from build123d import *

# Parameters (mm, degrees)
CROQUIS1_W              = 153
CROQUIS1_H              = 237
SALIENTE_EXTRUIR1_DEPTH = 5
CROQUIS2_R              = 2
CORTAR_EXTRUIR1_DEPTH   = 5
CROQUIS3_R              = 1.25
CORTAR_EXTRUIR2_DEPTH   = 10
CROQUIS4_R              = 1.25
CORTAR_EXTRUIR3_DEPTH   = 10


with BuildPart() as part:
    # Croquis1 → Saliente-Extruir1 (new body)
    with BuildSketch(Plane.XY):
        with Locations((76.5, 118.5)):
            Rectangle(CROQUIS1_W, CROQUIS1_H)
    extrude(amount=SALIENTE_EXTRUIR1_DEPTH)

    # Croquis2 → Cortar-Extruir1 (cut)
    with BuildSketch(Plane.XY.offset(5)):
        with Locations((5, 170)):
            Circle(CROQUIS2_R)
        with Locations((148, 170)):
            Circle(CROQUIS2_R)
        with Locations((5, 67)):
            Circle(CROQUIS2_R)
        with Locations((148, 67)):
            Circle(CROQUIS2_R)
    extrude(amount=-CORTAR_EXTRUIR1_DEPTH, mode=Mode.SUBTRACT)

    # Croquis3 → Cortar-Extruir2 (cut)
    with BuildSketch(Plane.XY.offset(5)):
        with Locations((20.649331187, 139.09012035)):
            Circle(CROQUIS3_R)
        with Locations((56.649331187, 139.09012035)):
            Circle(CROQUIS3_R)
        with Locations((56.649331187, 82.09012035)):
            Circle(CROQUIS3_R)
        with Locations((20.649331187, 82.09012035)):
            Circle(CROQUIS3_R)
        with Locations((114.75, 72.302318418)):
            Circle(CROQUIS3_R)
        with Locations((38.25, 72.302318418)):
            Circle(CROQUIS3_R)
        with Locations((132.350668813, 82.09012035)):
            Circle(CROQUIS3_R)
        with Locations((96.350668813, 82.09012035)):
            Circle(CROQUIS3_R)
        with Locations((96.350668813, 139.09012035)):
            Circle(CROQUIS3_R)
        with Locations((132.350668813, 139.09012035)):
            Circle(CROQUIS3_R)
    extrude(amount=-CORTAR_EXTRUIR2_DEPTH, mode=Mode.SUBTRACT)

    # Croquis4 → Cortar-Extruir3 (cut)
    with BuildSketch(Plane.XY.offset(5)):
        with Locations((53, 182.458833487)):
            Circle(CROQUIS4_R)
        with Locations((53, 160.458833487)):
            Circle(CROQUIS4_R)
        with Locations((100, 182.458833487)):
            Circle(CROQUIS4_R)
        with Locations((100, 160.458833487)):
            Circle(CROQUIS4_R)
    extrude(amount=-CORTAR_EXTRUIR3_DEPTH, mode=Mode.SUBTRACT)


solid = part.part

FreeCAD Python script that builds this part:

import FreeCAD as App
import Part
import Sketcher

V = App.Vector

doc = App.newDocument("Part")
params = doc.addObject("Spreadsheet::Sheet", "Params")
for row, (alias, value) in enumerate([
    ("sketch1_width", "153 mm"),
    ("sketch1_height", "237 mm"),
    ("pad1_length", "5 mm"),
    ("sketch2_diameter", "4 mm"),
    ("pocket1_length", "5 mm"),
    ("sketch3_diameter", "2.5 mm"),
    ("pocket2_length", "10 mm"),
    ("sketch4_diameter", "2.5 mm"),
    ("pocket3_length", "10 mm"),
], start=1):
    params.set(f"A{row}", alias)
    params.set(f"B{row}", "=" + value)
    params.setAlias(f"B{row}", alias)

body = doc.addObject("PartDesign::Body", "Body")

# Sketch on XY plane
sketch1 = doc.addObject("Sketcher::SketchObject", "Sketch")
body.addObject(sketch1)
sketch1.AttachmentSupport = (doc.XY_Plane, [""])
sketch1.MapMode = "FlatFace"
sketch1.addGeometry([
    Part.LineSegment(V(0, 237, 0), V(0, 0, 0)),
    Part.LineSegment(V(0, 0, 0), V(153, 0, 0)),
    Part.LineSegment(V(153, 0, 0), V(153, 237, 0)),
    Part.LineSegment(V(153, 237, 0), V(0, 237, 0)),
], False)
sketch1.addConstraint([
    Sketcher.Constraint("Coincident", 0, 2, 1, 1),
    Sketcher.Constraint("Coincident", 1, 2, 2, 1),
    Sketcher.Constraint("Coincident", 2, 2, 3, 1),
    Sketcher.Constraint("Coincident", 3, 2, 0, 1),
    Sketcher.Constraint("Vertical", 0),
    Sketcher.Constraint("Horizontal", 1),
    Sketcher.Constraint("Vertical", 2),
    Sketcher.Constraint("Horizontal", 3),
    Sketcher.Constraint("Coincident", 0, 2, -1, 1),
    Sketcher.Constraint("DistanceX", 1, 1, 1, 2, 153.0),
    Sketcher.Constraint("DistanceY", 0, 2, 0, 1, 237.0),
])
sketch1.setExpression("Constraints[9]", "Params.sketch1_width")
sketch1.setExpression("Constraints[10]", "Params.sketch1_height")
pad1 = doc.addObject("PartDesign::Pad", "Pad")
body.addObject(pad1)
pad1.Profile = sketch1
pad1.setExpression("Length", "Params.pad1_length")

# Sketch on XY plane
sketch2 = doc.addObject("Sketcher::SketchObject", "Sketch001")
body.addObject(sketch2)
sketch2.AttachmentSupport = (doc.XY_Plane, [""])
sketch2.MapMode = "FlatFace"
sketch2.AttachmentOffset = App.Placement(V(0, 0, 5), App.Rotation())
sketch2.addGeometry([
    Part.Circle(V(5, 170, 0), V(0, 0, 1), 2),
    Part.Circle(V(148, 170, 0), V(0, 0, 1), 2),
    Part.Circle(V(5, 67, 0), V(0, 0, 1), 2),
    Part.Circle(V(148, 67, 0), V(0, 0, 1), 2),
], False)
sketch2.addConstraint([
    Sketcher.Constraint("Equal", 0, 1),
    Sketcher.Constraint("Equal", 1, 2),
    Sketcher.Constraint("Equal", 2, 3),
    Sketcher.Constraint("Horizontal", 0, 3, 1, 3),
    Sketcher.Constraint("Horizontal", 2, 3, 3, 3),
    Sketcher.Constraint("Vertical", 0, 3, 2, 3),
    Sketcher.Constraint("Vertical", 1, 3, 3, 3),
    Sketcher.Constraint("Diameter", 0, 4.0),
    Sketcher.Constraint("DistanceX", -1, 1, 0, 3, 5.0),
    Sketcher.Constraint("DistanceY", -1, 1, 0, 3, 170.0),
    Sketcher.Constraint("DistanceX", -1, 1, 1, 3, 148.0),
    Sketcher.Constraint("DistanceY", -1, 1, 2, 3, 67.0),
])
sketch2.setExpression("Constraints[7]", "Params.sketch2_diameter")
pocket1 = doc.addObject("PartDesign::Pocket", "Pocket")
body.addObject(pocket1)
pocket1.Profile = sketch2
pocket1.setExpression("Length", "Params.pocket1_length")

# Sketch on XY plane
sketch3 = doc.addObject("Sketcher::SketchObject", "Sketch002")
body.addObject(sketch3)
sketch3.AttachmentSupport = (doc.XY_Plane, [""])
sketch3.MapMode = "FlatFace"
sketch3.AttachmentOffset = App.Placement(V(0, 0, 5), App.Rotation())
sketch3.addGeometry([
    Part.Circle(V(20.6, 139.1, 0), V(0, 0, 1), 1.2),  # 0
    Part.Circle(V(56.6, 139.1, 0), V(0, 0, 1), 1.2),  # 1
    Part.Circle(V(56.6, 82.1, 0), V(0, 0, 1), 1.2),  # 2
    Part.Circle(V(20.6, 82.1, 0), V(0, 0, 1), 1.2),  # 3
    Part.Circle(V(114.8, 72.3, 0), V(0, 0, 1), 1.2),  # 4
    Part.Circle(V(38.2, 72.3, 0), V(0, 0, 1), 1.2),  # 5
    Part.Circle(V(132.4, 82.1, 0), V(0, 0, 1), 1.2),  # 6
    Part.Circle(V(96.4, 82.1, 0), V(0, 0, 1), 1.2),  # 7
    Part.Circle(V(96.4, 139.1, 0), V(0, 0, 1), 1.2),  # 8
    Part.Circle(V(132.4, 139.1, 0), V(0, 0, 1), 1.2),  # 9
], False)
sketch3.addConstraint([
    Sketcher.Constraint("Equal", 0, 1),
    Sketcher.Constraint("Equal", 1, 2),
    Sketcher.Constraint("Equal", 2, 3),
    Sketcher.Constraint("Equal", 3, 4),
    Sketcher.Constraint("Equal", 4, 5),
    Sketcher.Constraint("Equal", 5, 6),
    Sketcher.Constraint("Equal", 6, 7),
    Sketcher.Constraint("Equal", 7, 8),
    Sketcher.Constraint("Equal", 8, 9),
    Sketcher.Constraint("Horizontal", 0, 3, 1, 3),
    Sketcher.Constraint("Horizontal", 2, 3, 3, 3),
    Sketcher.Constraint("Horizontal", 4, 3, 5, 3),
    Sketcher.Constraint("Horizontal", 3, 3, 6, 3),
    Sketcher.Constraint("Horizontal", 6, 3, 7, 3),
    Sketcher.Constraint("Horizontal", 1, 3, 8, 3),
    Sketcher.Constraint("Horizontal", 8, 3, 9, 3),
    Sketcher.Constraint("Vertical", 1, 3, 2, 3),
    Sketcher.Constraint("Vertical", 0, 3, 3, 3),
    Sketcher.Constraint("Vertical", 7, 3, 8, 3),
    Sketcher.Constraint("Vertical", 6, 3, 9, 3),
    Sketcher.Constraint("Diameter", 0, 2.5),
    Sketcher.Constraint("DistanceX", 0, 3, 1, 3, 36.0),
    Sketcher.Constraint("DistanceY", 2, 3, 1, 3, 57.0),
    Sketcher.Constraint("DistanceX", 7, 3, 6, 3, 36.0),
    Sketcher.Constraint("DistanceX", 5, 3, 4, 3, 76.5),
    Sketcher.Constraint("DistanceX", -1, 1, 4, 3, 114.75),
    Sketcher.Constraint("DistanceY", 4, 3, 2, 3, 9.787802),
    Sketcher.Constraint("DistanceX", -1, 1, 0, 3, 20.649331),
    Sketcher.Constraint("DistanceY", -1, 1, 0, 3, 139.09012),
    Sketcher.Constraint("DistanceX", -1, 1, 6, 3, 132.350669),
])
sketch3.setExpression("Constraints[20]", "Params.sketch3_diameter")
pocket2 = doc.addObject("PartDesign::Pocket", "Pocket001")
body.addObject(pocket2)
pocket2.Profile = sketch3
pocket2.setExpression("Length", "Params.pocket2_length")

# Sketch on XY plane
sketch4 = doc.addObject("Sketcher::SketchObject", "Sketch003")
body.addObject(sketch4)
sketch4.AttachmentSupport = (doc.XY_Plane, [""])
sketch4.MapMode = "FlatFace"
sketch4.AttachmentOffset = App.Placement(V(0, 0, 5), App.Rotation())
sketch4.addGeometry([
    Part.Circle(V(53, 182.5, 0), V(0, 0, 1), 1.2),
    Part.Circle(V(53, 160.5, 0), V(0, 0, 1), 1.2),
    Part.Circle(V(100, 182.5, 0), V(0, 0, 1), 1.2),
    Part.Circle(V(100, 160.5, 0), V(0, 0, 1), 1.2),
], False)
sketch4.addConstraint([
    Sketcher.Constraint("Equal", 0, 1),
    Sketcher.Constraint("Equal", 1, 2),
    Sketcher.Constraint("Equal", 2, 3),
    Sketcher.Constraint("Horizontal", 0, 3, 2, 3),
    Sketcher.Constraint("Horizontal", 1, 3, 3, 3),
    Sketcher.Constraint("Vertical", 0, 3, 1, 3),
    Sketcher.Constraint("Vertical", 2, 3, 3, 3),
    Sketcher.Constraint("Diameter", 0, 2.5),
    Sketcher.Constraint("DistanceX", -1, 1, 0, 3, 53.0),
    Sketcher.Constraint("DistanceX", -1, 1, 2, 3, 100.0),
    Sketcher.Constraint("DistanceY", 1, 3, 0, 3, 22.0),
    Sketcher.Constraint("DistanceY", -1, 1, 0, 3, 182.458833),
])
sketch4.setExpression("Constraints[7]", "Params.sketch4_diameter")
pocket3 = doc.addObject("PartDesign::Pocket", "Pocket002")
body.addObject(pocket3)
pocket3.Profile = sketch4
pocket3.setExpression("Length", "Params.pocket3_length")

doc.recompute()
